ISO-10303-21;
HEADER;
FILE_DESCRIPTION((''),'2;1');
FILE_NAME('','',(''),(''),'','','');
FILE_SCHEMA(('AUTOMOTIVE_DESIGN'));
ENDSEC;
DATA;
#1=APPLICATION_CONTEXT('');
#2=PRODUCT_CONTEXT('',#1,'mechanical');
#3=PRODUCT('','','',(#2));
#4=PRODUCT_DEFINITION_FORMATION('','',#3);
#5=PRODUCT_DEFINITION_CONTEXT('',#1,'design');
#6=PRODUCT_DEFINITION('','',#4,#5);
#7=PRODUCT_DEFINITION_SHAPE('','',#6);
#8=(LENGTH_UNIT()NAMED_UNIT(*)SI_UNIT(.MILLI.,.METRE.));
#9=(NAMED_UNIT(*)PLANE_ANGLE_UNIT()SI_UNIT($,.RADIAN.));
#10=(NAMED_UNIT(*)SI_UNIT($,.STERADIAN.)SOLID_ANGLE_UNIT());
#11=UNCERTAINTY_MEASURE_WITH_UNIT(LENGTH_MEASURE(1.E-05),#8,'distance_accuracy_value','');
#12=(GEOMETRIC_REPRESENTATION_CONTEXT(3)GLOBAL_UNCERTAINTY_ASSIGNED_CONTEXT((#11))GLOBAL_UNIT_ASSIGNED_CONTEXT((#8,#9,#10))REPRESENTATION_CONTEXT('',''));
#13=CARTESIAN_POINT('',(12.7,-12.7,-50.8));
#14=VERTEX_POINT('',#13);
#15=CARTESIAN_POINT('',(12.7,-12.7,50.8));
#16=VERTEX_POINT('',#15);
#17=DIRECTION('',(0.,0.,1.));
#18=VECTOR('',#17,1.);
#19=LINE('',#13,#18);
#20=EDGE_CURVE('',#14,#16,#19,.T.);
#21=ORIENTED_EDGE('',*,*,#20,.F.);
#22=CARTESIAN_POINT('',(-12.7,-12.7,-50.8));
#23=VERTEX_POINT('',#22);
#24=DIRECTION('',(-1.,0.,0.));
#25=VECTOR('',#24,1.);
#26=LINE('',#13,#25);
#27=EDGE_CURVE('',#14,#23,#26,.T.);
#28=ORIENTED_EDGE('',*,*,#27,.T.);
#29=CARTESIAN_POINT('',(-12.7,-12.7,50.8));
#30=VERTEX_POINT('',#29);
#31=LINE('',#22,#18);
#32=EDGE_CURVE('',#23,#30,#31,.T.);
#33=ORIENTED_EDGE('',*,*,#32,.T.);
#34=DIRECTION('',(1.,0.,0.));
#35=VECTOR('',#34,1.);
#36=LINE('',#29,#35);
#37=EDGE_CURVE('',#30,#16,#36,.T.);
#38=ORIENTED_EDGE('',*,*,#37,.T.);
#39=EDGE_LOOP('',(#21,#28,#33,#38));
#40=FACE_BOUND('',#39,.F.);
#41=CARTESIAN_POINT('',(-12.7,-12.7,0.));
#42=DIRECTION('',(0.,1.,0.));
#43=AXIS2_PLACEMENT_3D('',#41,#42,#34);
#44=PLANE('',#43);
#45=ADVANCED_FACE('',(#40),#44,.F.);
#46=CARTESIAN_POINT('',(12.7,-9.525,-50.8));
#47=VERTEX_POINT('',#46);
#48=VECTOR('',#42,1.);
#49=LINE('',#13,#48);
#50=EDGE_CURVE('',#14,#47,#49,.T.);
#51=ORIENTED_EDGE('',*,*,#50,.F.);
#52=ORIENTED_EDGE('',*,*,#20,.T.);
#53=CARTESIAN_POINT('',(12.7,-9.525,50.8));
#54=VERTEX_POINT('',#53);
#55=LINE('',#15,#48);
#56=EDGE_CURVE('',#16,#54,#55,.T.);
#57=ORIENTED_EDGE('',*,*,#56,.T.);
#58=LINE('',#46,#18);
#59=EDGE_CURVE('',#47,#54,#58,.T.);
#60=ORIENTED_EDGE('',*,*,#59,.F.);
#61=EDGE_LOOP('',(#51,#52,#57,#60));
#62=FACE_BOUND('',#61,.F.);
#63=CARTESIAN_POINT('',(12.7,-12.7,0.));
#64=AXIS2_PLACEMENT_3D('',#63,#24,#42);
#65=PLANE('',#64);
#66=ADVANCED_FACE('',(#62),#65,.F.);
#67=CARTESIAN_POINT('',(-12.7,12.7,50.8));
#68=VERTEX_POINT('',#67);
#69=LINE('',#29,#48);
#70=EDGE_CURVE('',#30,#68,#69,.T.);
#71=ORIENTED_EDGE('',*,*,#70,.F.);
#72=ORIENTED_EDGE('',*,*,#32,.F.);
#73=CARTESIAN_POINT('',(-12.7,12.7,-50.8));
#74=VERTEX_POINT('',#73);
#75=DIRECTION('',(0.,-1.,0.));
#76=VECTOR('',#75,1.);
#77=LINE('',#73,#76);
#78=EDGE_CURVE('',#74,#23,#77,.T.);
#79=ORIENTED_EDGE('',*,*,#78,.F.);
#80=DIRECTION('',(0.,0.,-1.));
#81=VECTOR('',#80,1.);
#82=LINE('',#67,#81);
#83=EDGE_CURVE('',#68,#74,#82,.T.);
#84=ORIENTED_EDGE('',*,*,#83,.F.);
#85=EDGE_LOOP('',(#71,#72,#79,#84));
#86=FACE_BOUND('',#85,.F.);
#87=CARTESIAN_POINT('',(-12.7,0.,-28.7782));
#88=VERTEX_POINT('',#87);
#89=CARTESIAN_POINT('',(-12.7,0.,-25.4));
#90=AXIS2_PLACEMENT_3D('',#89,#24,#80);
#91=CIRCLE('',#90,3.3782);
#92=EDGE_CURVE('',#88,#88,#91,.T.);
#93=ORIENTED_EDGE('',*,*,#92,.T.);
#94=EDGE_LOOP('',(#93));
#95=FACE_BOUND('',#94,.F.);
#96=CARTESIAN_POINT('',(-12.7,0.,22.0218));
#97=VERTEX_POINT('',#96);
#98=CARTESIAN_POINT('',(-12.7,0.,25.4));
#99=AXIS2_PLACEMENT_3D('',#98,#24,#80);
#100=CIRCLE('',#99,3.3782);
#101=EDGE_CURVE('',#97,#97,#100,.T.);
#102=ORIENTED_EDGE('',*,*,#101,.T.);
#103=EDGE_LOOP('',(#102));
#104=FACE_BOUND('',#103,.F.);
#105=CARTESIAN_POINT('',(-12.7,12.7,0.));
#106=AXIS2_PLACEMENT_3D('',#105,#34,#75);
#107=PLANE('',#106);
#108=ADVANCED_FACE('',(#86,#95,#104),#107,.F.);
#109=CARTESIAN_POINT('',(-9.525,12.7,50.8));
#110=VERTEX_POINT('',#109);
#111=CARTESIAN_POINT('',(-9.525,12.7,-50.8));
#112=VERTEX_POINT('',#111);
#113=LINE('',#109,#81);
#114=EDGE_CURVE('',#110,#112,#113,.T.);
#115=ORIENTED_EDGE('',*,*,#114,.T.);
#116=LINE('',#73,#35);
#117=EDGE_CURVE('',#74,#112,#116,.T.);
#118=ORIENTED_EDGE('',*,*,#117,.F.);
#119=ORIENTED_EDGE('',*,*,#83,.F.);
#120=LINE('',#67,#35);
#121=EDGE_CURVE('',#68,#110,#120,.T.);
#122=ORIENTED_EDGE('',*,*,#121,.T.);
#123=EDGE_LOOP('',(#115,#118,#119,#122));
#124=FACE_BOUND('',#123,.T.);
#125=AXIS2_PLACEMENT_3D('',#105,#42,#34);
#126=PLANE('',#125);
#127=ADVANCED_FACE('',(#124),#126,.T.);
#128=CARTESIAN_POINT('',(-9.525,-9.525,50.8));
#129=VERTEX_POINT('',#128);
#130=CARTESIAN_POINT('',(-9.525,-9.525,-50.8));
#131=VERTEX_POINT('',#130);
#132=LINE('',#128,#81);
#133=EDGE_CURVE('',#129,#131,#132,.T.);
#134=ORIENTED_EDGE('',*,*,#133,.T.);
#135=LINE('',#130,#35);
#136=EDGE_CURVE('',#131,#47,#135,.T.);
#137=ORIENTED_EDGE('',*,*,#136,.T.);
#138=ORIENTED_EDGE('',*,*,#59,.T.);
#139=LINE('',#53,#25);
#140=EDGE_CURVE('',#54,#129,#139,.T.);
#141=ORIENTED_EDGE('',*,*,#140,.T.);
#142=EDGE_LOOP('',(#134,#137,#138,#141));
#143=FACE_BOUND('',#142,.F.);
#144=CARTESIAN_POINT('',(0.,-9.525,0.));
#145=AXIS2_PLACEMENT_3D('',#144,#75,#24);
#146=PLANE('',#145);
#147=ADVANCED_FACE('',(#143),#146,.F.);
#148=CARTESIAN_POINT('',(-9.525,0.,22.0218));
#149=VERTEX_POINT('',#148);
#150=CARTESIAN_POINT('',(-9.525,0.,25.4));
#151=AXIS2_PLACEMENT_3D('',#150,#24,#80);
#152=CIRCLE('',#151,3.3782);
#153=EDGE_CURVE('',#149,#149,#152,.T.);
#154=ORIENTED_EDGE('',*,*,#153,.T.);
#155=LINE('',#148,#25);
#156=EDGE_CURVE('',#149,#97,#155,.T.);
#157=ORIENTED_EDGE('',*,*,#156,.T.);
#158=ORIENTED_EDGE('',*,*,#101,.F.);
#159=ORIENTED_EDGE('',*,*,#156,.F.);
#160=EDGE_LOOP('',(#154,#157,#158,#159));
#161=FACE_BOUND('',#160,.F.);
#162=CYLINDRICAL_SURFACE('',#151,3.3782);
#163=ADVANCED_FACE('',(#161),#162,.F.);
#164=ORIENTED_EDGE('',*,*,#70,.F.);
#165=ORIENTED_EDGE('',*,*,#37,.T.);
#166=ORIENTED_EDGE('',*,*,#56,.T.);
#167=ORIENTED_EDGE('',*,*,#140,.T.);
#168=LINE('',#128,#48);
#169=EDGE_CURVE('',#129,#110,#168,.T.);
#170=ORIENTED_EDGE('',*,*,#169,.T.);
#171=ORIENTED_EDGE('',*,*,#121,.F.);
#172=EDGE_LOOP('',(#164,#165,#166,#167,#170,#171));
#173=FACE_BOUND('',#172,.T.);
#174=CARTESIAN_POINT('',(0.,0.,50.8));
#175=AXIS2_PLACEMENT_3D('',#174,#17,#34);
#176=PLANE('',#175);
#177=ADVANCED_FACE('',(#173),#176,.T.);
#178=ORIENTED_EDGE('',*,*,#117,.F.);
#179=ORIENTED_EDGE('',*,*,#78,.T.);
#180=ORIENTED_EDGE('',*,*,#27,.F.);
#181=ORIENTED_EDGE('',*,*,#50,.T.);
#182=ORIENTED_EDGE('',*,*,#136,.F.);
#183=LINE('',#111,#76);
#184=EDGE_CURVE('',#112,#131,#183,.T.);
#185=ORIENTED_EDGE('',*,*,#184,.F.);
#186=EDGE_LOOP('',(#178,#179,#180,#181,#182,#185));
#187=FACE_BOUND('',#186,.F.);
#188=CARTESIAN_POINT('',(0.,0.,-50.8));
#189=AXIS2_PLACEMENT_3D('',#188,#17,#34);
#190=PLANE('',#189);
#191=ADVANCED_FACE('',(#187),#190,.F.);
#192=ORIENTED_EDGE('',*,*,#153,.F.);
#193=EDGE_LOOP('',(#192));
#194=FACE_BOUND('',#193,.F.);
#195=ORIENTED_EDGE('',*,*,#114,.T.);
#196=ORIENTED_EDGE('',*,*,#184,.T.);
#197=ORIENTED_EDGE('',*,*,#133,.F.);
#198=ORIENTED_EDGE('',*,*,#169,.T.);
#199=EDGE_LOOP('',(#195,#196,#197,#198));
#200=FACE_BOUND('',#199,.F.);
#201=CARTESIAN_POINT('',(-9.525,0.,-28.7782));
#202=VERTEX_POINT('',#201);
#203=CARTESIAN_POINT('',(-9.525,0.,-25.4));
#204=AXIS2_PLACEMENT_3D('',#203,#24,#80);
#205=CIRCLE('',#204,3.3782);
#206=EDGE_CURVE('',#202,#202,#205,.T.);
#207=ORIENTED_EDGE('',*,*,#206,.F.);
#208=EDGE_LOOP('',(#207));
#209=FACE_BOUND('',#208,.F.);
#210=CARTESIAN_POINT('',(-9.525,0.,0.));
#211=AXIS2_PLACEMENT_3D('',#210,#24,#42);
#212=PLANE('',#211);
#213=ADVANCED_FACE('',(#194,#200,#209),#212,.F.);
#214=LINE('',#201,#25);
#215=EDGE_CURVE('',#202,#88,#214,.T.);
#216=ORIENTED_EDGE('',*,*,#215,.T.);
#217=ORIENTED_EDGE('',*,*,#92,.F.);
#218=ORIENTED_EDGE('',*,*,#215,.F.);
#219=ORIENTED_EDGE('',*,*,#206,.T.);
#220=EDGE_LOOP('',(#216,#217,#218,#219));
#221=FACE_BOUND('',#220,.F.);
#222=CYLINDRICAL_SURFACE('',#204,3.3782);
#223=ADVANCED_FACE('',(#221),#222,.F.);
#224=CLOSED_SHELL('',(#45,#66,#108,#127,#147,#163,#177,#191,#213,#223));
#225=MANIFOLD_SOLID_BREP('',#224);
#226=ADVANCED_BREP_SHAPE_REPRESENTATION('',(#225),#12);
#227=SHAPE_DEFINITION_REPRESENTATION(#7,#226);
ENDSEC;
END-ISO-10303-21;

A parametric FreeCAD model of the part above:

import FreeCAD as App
import Part
import Sketcher
Q = App.Units.Quantity


def add_polygon(sketch, points):
    """Adds a closed chain of lines whose ends are joined by coincident constraints."""
    first, n = sketch.GeometryCount, len(points)
    for a, b in zip(points, points[1:] + points[:1]):
        sketch.addGeometry(Part.LineSegment(App.Vector(*a, 0), App.Vector(*b, 0)), False)
    for i in range(n):
        sketch.addConstraint(Sketcher.Constraint("Coincident", first + i, 2, first + (i + 1) % n, 1))

doc = App.newDocument("Part")
body = doc.addObject("PartDesign::Body", "Body")

sketch1 = doc.addObject("Sketcher::SketchObject", "Sketch")
body.addObject(sketch1)
sketch1.AttachmentSupport = (doc.XY_Plane, [""])
sketch1.MapMode = "FlatFace"
add_polygon(sketch1, [(-12.7, 12.7), (-12.7, -12.7), (12.7, -12.7), (12.7, -9.5), (-9.5, -9.5), (-9.5, 12.7)])
sketch1.addConstraint([
    Sketcher.Constraint("Vertical", 0),
    Sketcher.Constraint("Horizontal", 1),
    Sketcher.Constraint("Vertical", 2),
    Sketcher.Constraint("Horizontal", 3),
    Sketcher.Constraint("Vertical", 4),
    Sketcher.Constraint("Horizontal", 5),
    Sketcher.Constraint("Symmetric", 1, 2, 5, 2, -1, 1),
    Sketcher.Constraint("Equal", 1, 0),
    Sketcher.Constraint("Equal", 5, 2),
    Sketcher.Constraint("DistanceX", 1, 1, 1, 2, Q("1 in")),
    Sketcher.Constraint("DistanceX", 5, 2, 5, 1, Q("0.125 in")),
])
pad1 = doc.addObject("PartDesign::Pad", "Pad")
body.addObject(pad1)
pad1.Profile = sketch1
pad1.Length = Q("4 in")
pad1.Midplane = True

sketch2 = doc.addObject("Sketcher::SketchObject", "Sketch001")
body.addObject(sketch2)
sketch2.AttachmentSupport = (doc.YZ_Plane, [""])
sketch2.MapMode = "FlatFace"
sketch2.AttachmentOffset = App.Placement(App.Vector(0, 0, -0.375 * 25.4), App.Rotation())
sketch2.addGeometry([
    Part.Circle(App.Vector(0, 25.4, 0), App.Vector(0, 0, 1), 3.4),
    Part.Circle(App.Vector(0, -25.4, 0), App.Vector(0, 0, 1), 3.4),
], False)
sketch2.addConstraint([
    Sketcher.Constraint("Equal", 0, 1),
    Sketcher.Constraint("Symmetric", 0, 3, 1, 3, -1, 1),
    Sketcher.Constraint("PointOnObject", 0, 3, -2),
    Sketcher.Constraint("Diameter", 0, Q("0.266 in")),
    Sketcher.Constraint("DistanceY", -1, 1, 0, 3, Q("1 in")),
])
doc.recompute()
hole = doc.addObject("PartDesign::Hole", "Hole")
body.addObject(hole)
hole.Profile = sketch2
hole.ThreadType = "None"
hole.Diameter = Q("0.266 in")
hole.DepthType = "ThroughAll"

doc.recompute()
